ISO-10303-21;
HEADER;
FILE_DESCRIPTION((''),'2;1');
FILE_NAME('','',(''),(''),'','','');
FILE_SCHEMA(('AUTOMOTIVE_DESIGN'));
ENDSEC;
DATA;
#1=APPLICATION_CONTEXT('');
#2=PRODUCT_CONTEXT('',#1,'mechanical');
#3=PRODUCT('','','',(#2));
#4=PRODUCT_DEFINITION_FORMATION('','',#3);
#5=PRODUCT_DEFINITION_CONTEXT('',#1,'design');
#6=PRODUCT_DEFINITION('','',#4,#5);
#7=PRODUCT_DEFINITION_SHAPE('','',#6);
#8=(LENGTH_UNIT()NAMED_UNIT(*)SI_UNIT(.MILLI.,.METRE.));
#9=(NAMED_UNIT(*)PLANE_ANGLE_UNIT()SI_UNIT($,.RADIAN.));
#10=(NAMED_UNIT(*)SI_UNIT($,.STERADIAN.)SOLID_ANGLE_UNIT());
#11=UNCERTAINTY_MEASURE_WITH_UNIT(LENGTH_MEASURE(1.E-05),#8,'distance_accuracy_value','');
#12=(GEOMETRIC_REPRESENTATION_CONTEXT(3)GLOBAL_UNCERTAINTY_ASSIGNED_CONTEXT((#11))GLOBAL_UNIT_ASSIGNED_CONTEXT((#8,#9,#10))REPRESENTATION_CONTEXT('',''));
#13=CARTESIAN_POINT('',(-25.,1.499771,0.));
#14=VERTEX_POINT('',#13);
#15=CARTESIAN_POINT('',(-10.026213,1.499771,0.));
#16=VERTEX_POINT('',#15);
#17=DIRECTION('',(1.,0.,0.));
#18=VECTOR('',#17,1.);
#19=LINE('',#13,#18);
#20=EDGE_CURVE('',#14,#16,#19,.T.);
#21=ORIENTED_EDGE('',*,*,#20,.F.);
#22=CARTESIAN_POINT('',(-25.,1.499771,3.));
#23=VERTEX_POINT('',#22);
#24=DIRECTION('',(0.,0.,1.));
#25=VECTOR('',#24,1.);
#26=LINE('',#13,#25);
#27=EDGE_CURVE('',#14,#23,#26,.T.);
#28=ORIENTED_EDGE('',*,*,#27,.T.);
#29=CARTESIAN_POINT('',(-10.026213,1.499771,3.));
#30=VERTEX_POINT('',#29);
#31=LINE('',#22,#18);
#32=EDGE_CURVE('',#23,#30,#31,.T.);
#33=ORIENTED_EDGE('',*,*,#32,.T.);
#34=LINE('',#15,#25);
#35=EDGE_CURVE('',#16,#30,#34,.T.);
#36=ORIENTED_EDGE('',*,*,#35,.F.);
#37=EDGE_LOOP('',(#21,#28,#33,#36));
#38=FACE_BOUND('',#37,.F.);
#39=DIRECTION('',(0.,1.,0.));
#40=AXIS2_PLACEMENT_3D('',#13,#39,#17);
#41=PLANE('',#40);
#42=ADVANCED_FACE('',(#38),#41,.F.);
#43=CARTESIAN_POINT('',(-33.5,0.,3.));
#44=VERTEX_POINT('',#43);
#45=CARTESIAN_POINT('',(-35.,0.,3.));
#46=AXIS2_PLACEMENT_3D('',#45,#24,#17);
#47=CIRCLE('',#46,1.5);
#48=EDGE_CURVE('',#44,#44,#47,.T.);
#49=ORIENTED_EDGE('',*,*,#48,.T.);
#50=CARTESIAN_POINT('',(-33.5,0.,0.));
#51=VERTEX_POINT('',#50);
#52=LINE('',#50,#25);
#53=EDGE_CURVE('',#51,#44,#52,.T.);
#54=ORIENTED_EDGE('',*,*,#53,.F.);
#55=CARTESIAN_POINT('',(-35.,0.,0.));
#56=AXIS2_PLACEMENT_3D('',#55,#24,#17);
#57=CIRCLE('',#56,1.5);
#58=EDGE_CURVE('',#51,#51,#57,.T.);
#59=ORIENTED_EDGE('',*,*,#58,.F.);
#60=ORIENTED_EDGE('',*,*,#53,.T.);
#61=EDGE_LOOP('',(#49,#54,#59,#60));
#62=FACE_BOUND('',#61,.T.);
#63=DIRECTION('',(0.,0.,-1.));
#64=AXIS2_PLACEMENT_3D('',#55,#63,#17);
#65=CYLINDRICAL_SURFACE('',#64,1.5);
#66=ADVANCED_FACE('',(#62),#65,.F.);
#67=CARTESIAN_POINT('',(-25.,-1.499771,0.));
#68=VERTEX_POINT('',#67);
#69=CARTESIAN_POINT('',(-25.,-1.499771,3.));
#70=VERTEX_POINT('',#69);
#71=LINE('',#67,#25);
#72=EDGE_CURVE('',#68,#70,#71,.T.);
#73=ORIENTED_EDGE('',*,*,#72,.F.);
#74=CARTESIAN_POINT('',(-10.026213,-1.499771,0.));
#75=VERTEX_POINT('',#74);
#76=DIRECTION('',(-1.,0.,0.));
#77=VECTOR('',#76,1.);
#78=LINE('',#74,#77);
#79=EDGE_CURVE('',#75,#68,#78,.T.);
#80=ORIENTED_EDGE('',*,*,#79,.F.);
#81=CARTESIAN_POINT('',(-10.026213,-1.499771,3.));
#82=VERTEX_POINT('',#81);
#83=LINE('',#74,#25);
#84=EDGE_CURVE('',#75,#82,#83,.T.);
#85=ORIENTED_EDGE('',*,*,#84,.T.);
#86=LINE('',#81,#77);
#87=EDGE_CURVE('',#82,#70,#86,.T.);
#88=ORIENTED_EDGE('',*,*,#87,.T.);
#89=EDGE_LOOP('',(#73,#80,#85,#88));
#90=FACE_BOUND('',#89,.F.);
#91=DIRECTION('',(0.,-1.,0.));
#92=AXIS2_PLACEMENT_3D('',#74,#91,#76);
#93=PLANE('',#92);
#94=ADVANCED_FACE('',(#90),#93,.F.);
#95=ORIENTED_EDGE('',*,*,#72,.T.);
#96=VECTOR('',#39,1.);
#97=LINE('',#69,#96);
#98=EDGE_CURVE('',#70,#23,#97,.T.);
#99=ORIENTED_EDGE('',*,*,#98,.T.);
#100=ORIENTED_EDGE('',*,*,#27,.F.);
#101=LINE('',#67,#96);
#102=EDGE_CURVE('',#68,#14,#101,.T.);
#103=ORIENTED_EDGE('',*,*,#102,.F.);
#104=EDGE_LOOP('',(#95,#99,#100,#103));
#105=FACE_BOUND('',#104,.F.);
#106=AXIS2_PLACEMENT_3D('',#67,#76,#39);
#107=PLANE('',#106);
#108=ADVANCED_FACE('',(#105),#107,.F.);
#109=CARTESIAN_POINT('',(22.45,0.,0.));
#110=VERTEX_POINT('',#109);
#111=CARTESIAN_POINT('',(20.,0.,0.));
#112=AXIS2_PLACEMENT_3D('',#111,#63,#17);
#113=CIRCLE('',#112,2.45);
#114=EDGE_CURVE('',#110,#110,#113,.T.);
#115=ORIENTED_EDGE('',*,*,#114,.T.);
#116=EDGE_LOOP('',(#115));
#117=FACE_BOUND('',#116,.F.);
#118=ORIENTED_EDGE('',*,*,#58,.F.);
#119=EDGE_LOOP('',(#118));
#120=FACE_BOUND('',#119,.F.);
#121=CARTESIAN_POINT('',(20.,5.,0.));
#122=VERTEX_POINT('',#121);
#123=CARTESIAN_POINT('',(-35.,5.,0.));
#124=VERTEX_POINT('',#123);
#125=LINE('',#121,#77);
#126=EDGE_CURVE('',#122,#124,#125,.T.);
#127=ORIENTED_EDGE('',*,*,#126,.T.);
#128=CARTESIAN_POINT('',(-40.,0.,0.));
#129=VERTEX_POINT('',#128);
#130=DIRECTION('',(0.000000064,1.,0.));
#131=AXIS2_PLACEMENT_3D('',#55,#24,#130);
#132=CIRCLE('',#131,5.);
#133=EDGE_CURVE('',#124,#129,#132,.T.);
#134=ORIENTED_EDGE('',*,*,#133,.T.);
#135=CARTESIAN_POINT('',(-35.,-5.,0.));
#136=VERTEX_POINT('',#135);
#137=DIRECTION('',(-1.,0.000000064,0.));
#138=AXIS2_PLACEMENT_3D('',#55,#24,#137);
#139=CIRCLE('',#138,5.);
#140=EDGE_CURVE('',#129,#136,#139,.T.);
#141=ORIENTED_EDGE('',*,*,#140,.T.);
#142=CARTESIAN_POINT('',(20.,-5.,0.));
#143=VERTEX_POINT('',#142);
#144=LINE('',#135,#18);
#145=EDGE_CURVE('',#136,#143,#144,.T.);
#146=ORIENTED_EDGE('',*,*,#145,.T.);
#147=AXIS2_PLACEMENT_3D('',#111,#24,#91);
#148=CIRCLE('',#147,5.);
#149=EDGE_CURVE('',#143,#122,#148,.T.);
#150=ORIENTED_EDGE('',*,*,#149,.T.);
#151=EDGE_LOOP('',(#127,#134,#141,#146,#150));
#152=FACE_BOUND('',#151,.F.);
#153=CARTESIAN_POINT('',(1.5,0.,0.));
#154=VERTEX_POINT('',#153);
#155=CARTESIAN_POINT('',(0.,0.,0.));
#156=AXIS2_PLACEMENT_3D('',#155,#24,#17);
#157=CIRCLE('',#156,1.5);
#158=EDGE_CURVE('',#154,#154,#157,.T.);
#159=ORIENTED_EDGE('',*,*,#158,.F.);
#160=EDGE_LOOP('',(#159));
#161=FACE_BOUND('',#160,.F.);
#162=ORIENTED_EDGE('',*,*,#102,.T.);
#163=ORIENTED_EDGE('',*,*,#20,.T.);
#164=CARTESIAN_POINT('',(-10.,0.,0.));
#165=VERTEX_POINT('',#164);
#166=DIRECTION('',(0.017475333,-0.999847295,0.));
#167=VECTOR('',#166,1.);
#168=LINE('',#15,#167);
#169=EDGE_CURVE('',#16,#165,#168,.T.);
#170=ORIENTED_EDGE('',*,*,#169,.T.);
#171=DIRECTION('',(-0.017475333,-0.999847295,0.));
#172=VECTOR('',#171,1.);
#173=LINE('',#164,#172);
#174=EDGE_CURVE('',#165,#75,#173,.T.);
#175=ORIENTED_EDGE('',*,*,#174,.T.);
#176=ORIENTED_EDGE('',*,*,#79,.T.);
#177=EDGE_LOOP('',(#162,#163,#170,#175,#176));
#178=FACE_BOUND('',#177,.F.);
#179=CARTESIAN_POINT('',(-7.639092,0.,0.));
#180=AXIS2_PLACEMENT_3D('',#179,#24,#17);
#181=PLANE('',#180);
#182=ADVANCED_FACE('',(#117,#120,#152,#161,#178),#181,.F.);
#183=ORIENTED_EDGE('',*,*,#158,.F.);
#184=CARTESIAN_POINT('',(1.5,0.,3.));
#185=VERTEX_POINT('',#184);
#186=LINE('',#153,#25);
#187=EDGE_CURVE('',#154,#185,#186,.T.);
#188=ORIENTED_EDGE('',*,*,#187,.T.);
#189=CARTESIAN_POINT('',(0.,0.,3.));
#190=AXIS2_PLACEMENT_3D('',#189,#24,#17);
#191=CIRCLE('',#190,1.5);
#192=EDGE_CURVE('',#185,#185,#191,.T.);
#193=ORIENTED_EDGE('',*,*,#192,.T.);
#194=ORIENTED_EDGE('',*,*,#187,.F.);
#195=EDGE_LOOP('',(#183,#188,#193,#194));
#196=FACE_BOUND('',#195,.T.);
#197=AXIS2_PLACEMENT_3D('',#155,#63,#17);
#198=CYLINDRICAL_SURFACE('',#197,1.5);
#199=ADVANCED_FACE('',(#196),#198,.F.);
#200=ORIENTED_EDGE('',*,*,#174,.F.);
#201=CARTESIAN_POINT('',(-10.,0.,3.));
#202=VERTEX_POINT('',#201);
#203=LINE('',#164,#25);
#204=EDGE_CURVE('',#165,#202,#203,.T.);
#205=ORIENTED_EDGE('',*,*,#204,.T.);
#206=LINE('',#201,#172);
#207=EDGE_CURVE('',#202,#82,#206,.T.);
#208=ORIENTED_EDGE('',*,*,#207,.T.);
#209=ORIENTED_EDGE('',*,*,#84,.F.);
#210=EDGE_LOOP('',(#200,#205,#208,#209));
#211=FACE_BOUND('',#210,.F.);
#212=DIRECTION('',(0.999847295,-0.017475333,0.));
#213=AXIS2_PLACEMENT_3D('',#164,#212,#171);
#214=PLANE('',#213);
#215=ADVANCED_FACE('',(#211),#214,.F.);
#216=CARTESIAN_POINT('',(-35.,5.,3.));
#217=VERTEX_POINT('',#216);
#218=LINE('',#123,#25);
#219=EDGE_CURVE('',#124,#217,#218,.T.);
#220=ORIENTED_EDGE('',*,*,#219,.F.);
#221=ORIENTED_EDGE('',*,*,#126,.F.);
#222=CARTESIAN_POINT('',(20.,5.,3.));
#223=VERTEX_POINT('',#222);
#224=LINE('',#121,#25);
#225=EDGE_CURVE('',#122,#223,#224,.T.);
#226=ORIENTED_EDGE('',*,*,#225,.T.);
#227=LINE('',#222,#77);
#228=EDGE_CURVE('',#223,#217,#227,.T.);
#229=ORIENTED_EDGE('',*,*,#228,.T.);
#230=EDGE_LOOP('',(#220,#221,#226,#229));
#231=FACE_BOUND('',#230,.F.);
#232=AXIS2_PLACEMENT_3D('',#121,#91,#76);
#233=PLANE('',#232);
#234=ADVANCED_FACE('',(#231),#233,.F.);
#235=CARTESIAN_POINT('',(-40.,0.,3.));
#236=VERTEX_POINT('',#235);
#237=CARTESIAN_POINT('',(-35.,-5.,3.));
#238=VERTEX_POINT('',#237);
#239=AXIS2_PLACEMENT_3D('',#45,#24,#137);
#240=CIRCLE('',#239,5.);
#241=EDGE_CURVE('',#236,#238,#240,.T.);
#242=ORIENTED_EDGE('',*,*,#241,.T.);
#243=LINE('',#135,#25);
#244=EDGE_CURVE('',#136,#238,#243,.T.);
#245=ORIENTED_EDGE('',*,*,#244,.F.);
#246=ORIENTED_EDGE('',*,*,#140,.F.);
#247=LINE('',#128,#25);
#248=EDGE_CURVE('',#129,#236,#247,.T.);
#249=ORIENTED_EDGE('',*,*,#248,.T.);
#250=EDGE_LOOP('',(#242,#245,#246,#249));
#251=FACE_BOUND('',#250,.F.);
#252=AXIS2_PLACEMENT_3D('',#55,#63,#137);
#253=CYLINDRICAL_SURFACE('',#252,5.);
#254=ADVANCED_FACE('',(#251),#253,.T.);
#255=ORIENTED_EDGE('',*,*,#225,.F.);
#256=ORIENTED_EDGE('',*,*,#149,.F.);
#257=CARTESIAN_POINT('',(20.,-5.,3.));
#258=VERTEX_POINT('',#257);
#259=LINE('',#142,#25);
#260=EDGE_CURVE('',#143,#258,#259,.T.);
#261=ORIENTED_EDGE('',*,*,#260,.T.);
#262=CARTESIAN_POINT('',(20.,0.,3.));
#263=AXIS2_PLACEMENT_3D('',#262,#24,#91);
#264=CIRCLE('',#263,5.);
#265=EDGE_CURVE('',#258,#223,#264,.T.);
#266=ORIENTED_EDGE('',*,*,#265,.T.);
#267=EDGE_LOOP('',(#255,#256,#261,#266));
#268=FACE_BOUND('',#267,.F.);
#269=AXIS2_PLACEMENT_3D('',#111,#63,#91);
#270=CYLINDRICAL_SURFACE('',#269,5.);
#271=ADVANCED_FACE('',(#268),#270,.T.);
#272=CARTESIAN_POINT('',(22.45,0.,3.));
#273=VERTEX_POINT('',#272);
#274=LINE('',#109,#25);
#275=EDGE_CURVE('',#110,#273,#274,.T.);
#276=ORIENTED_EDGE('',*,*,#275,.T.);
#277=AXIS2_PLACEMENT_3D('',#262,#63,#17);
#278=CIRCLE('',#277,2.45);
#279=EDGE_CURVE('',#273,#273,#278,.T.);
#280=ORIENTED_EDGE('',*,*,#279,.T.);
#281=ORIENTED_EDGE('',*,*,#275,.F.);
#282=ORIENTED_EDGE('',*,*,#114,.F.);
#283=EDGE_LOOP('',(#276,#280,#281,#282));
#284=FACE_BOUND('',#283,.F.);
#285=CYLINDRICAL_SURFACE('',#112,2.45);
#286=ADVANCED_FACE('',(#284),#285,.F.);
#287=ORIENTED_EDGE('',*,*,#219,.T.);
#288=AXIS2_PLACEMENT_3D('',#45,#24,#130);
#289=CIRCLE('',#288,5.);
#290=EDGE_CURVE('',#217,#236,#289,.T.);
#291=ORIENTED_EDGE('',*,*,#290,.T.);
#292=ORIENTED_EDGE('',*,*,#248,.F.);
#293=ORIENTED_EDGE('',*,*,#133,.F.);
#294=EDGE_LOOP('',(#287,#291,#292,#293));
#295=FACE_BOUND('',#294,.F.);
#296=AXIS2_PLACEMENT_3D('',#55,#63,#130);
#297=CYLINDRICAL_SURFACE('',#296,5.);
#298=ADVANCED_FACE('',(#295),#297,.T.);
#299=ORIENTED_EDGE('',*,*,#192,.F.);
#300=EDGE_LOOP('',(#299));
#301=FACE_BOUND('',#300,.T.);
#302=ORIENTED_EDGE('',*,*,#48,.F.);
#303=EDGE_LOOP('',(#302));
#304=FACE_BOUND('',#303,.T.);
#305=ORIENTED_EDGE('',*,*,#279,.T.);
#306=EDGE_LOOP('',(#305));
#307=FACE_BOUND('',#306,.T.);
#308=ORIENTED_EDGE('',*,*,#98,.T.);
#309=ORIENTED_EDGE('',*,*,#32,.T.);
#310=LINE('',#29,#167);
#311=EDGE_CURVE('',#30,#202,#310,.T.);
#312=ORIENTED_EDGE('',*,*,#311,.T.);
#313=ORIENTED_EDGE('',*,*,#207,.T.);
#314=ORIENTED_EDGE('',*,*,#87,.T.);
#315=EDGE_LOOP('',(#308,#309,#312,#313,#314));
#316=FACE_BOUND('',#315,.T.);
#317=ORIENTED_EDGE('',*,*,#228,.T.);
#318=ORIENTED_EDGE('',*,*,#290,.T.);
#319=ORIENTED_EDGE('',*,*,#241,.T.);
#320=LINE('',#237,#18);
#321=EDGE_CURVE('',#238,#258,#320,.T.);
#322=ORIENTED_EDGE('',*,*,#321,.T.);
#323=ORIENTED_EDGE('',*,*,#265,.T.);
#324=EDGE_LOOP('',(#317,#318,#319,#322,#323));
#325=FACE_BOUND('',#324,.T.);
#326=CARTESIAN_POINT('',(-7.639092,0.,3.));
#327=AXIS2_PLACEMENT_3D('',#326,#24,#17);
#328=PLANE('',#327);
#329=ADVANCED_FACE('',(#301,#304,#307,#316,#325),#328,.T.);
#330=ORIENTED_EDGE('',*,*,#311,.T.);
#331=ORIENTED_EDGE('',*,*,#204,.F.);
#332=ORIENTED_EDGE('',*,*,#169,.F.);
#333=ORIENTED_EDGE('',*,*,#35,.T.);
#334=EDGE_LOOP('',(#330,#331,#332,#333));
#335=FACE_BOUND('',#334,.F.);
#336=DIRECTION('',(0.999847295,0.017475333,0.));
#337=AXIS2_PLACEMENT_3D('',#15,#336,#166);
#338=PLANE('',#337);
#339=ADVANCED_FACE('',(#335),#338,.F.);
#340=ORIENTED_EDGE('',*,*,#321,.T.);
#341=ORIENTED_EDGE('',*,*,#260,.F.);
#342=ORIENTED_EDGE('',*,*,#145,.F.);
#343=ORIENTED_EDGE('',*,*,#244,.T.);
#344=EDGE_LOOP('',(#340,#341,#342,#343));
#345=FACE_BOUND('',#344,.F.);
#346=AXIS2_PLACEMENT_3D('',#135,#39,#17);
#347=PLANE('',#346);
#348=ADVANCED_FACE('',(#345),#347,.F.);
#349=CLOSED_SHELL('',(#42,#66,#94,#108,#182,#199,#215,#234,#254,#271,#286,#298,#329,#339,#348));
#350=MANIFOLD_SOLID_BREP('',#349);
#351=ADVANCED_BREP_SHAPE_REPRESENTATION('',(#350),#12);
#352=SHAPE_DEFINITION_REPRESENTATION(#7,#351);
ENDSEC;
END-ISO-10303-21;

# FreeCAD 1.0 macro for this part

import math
import FreeCAD as App
import Part
import Sketcher

V = App.Vector


def add_polygon(sketch, points):
    """Adds a closed chain of lines whose ends are joined by coincident constraints."""
    first, n = sketch.GeometryCount, len(points)
    for a, b in zip(points, points[1:] + points[:1]):
        sketch.addGeometry(Part.LineSegment(App.Vector(*a, 0), App.Vector(*b, 0)), False)
    for i in range(n):
        sketch.addConstraint(Sketcher.Constraint("Coincident", first + i, 2, first + (i + 1) % n, 1))

doc = App.newDocument("Part")
body = doc.addObject("PartDesign::Body", "Body")

sketch1 = body.newObject("Sketcher::SketchObject", "Sketch")
sketch1.AttachmentSupport = (doc.getObject("XY_Plane"), [""])
sketch1.MapMode = "FlatFace"
sketch1.addGeometry(Part.LineSegment(V(-35, -5, 0), V(20, -5, 0)), False)
sketch1.addGeometry(Part.ArcOfCircle(Part.Circle(V(20, 0, 0), V(0, 0, 1), 5), math.radians(-90), math.radians(90)), False)
sketch1.addGeometry(Part.LineSegment(V(20, 5, 0), V(-35, 5, 0)), False)
sketch1.addGeometry(Part.ArcOfCircle(Part.Circle(V(-35, 0, 0), V(0, 0, 1), 5), math.radians(89.999996), math.radians(180.000004)), False)
sketch1.addGeometry(Part.ArcOfCircle(Part.Circle(V(-35, 0, 0), V(0, 0, 1), 5), math.radians(179.999996), math.radians(270.000004)), False)
sketch1.addGeometry(Part.Circle(V(-35, 0, 0), V(0, 0, 1), 1.5), False)
add_polygon(sketch1, [(-10.026213, -1.499771), (-25, -1.499771), (-25, 1.499771), (-10.026213, 1.499771), (-10, 0)])
sketch1.addGeometry(Part.Circle(V(0, 0, 0), V(0, 0, 1), 1.5), False)
sketch1.addGeometry(Part.Circle(V(20, 0, 0), V(0, 0, 1), 2.45), False)
sketch1.addConstraint(Sketcher.Constraint("Tangent", 0, 2, 1, 1))
sketch1.addConstraint(Sketcher.Constraint("Tangent", 1, 2, 2, 1))
sketch1.addConstraint(Sketcher.Constraint("Tangent", 2, 2, 3, 1))
sketch1.addConstraint(Sketcher.Constraint("Tangent", 3, 2, 4, 1))
sketch1.addConstraint(Sketcher.Constraint("Tangent", 4, 2, 0, 1))
sketch1.addConstraint(Sketcher.Constraint("Horizontal", 0))
sketch1.addConstraint(Sketcher.Constraint("Horizontal", 2))
sketch1.addConstraint(Sketcher.Constraint("Horizontal", 6))
sketch1.addConstraint(Sketcher.Constraint("Vertical", 7))
sketch1.addConstraint(Sketcher.Constraint("Horizontal", 8))
sketch1.addConstraint(Sketcher.Constraint("Coincident", 11, 3, -1, 1))
sketch1.addConstraint(Sketcher.Constraint("Coincident", 5, 3, 3, 3))
sketch1.addConstraint(Sketcher.Constraint("Coincident", 12, 3, 1, 3))
sketch1.addConstraint(Sketcher.Constraint("Equal", 1, 3))
sketch1.addConstraint(Sketcher.Constraint("Equal", 5, 11))
sketch1.addConstraint(Sketcher.Constraint("Symmetric", 8, 2, 10, 2, -1))
sketch1.addConstraint(Sketcher.Constraint("PointOnObject", 1, 3, -1))
sketch1.addConstraint(Sketcher.Constraint("PointOnObject", 3, 2, -1))
sketch1.addConstraint(Sketcher.Constraint("PointOnObject", 9, 2, -1))
sketch1.addConstraint(Sketcher.Constraint("Diameter", 5, 3.0))
sketch1.addConstraint(Sketcher.Constraint("Radius", 1, 5.0))
sketch1.addConstraint(Sketcher.Constraint("Diameter", 12, 4.9))
sketch1.addConstraint(Sketcher.Constraint("DistanceX", 0, 1, 0, 2, 55.0))
sketch1.addConstraint(Sketcher.Constraint("DistanceX", -1, 1, 1, 3, 20.0))
sketch1.addConstraint(Sketcher.Constraint("DistanceX", 6, 2, -1, 1, 25.0))
sketch1.addConstraint(Sketcher.Constraint("DistanceX", 9, 2, -1, 1, 10.0))
sketch1.addConstraint(Sketcher.Constraint("Distance", 9, 1.5))
sketch1.addConstraint(Sketcher.Constraint("DistanceY", 7, 1, 7, 2, 2.999542))
pad1 = body.newObject("PartDesign::Pad", "Pad")
pad1.Profile = sketch1
pad1.Length = 3

doc.recompute()
